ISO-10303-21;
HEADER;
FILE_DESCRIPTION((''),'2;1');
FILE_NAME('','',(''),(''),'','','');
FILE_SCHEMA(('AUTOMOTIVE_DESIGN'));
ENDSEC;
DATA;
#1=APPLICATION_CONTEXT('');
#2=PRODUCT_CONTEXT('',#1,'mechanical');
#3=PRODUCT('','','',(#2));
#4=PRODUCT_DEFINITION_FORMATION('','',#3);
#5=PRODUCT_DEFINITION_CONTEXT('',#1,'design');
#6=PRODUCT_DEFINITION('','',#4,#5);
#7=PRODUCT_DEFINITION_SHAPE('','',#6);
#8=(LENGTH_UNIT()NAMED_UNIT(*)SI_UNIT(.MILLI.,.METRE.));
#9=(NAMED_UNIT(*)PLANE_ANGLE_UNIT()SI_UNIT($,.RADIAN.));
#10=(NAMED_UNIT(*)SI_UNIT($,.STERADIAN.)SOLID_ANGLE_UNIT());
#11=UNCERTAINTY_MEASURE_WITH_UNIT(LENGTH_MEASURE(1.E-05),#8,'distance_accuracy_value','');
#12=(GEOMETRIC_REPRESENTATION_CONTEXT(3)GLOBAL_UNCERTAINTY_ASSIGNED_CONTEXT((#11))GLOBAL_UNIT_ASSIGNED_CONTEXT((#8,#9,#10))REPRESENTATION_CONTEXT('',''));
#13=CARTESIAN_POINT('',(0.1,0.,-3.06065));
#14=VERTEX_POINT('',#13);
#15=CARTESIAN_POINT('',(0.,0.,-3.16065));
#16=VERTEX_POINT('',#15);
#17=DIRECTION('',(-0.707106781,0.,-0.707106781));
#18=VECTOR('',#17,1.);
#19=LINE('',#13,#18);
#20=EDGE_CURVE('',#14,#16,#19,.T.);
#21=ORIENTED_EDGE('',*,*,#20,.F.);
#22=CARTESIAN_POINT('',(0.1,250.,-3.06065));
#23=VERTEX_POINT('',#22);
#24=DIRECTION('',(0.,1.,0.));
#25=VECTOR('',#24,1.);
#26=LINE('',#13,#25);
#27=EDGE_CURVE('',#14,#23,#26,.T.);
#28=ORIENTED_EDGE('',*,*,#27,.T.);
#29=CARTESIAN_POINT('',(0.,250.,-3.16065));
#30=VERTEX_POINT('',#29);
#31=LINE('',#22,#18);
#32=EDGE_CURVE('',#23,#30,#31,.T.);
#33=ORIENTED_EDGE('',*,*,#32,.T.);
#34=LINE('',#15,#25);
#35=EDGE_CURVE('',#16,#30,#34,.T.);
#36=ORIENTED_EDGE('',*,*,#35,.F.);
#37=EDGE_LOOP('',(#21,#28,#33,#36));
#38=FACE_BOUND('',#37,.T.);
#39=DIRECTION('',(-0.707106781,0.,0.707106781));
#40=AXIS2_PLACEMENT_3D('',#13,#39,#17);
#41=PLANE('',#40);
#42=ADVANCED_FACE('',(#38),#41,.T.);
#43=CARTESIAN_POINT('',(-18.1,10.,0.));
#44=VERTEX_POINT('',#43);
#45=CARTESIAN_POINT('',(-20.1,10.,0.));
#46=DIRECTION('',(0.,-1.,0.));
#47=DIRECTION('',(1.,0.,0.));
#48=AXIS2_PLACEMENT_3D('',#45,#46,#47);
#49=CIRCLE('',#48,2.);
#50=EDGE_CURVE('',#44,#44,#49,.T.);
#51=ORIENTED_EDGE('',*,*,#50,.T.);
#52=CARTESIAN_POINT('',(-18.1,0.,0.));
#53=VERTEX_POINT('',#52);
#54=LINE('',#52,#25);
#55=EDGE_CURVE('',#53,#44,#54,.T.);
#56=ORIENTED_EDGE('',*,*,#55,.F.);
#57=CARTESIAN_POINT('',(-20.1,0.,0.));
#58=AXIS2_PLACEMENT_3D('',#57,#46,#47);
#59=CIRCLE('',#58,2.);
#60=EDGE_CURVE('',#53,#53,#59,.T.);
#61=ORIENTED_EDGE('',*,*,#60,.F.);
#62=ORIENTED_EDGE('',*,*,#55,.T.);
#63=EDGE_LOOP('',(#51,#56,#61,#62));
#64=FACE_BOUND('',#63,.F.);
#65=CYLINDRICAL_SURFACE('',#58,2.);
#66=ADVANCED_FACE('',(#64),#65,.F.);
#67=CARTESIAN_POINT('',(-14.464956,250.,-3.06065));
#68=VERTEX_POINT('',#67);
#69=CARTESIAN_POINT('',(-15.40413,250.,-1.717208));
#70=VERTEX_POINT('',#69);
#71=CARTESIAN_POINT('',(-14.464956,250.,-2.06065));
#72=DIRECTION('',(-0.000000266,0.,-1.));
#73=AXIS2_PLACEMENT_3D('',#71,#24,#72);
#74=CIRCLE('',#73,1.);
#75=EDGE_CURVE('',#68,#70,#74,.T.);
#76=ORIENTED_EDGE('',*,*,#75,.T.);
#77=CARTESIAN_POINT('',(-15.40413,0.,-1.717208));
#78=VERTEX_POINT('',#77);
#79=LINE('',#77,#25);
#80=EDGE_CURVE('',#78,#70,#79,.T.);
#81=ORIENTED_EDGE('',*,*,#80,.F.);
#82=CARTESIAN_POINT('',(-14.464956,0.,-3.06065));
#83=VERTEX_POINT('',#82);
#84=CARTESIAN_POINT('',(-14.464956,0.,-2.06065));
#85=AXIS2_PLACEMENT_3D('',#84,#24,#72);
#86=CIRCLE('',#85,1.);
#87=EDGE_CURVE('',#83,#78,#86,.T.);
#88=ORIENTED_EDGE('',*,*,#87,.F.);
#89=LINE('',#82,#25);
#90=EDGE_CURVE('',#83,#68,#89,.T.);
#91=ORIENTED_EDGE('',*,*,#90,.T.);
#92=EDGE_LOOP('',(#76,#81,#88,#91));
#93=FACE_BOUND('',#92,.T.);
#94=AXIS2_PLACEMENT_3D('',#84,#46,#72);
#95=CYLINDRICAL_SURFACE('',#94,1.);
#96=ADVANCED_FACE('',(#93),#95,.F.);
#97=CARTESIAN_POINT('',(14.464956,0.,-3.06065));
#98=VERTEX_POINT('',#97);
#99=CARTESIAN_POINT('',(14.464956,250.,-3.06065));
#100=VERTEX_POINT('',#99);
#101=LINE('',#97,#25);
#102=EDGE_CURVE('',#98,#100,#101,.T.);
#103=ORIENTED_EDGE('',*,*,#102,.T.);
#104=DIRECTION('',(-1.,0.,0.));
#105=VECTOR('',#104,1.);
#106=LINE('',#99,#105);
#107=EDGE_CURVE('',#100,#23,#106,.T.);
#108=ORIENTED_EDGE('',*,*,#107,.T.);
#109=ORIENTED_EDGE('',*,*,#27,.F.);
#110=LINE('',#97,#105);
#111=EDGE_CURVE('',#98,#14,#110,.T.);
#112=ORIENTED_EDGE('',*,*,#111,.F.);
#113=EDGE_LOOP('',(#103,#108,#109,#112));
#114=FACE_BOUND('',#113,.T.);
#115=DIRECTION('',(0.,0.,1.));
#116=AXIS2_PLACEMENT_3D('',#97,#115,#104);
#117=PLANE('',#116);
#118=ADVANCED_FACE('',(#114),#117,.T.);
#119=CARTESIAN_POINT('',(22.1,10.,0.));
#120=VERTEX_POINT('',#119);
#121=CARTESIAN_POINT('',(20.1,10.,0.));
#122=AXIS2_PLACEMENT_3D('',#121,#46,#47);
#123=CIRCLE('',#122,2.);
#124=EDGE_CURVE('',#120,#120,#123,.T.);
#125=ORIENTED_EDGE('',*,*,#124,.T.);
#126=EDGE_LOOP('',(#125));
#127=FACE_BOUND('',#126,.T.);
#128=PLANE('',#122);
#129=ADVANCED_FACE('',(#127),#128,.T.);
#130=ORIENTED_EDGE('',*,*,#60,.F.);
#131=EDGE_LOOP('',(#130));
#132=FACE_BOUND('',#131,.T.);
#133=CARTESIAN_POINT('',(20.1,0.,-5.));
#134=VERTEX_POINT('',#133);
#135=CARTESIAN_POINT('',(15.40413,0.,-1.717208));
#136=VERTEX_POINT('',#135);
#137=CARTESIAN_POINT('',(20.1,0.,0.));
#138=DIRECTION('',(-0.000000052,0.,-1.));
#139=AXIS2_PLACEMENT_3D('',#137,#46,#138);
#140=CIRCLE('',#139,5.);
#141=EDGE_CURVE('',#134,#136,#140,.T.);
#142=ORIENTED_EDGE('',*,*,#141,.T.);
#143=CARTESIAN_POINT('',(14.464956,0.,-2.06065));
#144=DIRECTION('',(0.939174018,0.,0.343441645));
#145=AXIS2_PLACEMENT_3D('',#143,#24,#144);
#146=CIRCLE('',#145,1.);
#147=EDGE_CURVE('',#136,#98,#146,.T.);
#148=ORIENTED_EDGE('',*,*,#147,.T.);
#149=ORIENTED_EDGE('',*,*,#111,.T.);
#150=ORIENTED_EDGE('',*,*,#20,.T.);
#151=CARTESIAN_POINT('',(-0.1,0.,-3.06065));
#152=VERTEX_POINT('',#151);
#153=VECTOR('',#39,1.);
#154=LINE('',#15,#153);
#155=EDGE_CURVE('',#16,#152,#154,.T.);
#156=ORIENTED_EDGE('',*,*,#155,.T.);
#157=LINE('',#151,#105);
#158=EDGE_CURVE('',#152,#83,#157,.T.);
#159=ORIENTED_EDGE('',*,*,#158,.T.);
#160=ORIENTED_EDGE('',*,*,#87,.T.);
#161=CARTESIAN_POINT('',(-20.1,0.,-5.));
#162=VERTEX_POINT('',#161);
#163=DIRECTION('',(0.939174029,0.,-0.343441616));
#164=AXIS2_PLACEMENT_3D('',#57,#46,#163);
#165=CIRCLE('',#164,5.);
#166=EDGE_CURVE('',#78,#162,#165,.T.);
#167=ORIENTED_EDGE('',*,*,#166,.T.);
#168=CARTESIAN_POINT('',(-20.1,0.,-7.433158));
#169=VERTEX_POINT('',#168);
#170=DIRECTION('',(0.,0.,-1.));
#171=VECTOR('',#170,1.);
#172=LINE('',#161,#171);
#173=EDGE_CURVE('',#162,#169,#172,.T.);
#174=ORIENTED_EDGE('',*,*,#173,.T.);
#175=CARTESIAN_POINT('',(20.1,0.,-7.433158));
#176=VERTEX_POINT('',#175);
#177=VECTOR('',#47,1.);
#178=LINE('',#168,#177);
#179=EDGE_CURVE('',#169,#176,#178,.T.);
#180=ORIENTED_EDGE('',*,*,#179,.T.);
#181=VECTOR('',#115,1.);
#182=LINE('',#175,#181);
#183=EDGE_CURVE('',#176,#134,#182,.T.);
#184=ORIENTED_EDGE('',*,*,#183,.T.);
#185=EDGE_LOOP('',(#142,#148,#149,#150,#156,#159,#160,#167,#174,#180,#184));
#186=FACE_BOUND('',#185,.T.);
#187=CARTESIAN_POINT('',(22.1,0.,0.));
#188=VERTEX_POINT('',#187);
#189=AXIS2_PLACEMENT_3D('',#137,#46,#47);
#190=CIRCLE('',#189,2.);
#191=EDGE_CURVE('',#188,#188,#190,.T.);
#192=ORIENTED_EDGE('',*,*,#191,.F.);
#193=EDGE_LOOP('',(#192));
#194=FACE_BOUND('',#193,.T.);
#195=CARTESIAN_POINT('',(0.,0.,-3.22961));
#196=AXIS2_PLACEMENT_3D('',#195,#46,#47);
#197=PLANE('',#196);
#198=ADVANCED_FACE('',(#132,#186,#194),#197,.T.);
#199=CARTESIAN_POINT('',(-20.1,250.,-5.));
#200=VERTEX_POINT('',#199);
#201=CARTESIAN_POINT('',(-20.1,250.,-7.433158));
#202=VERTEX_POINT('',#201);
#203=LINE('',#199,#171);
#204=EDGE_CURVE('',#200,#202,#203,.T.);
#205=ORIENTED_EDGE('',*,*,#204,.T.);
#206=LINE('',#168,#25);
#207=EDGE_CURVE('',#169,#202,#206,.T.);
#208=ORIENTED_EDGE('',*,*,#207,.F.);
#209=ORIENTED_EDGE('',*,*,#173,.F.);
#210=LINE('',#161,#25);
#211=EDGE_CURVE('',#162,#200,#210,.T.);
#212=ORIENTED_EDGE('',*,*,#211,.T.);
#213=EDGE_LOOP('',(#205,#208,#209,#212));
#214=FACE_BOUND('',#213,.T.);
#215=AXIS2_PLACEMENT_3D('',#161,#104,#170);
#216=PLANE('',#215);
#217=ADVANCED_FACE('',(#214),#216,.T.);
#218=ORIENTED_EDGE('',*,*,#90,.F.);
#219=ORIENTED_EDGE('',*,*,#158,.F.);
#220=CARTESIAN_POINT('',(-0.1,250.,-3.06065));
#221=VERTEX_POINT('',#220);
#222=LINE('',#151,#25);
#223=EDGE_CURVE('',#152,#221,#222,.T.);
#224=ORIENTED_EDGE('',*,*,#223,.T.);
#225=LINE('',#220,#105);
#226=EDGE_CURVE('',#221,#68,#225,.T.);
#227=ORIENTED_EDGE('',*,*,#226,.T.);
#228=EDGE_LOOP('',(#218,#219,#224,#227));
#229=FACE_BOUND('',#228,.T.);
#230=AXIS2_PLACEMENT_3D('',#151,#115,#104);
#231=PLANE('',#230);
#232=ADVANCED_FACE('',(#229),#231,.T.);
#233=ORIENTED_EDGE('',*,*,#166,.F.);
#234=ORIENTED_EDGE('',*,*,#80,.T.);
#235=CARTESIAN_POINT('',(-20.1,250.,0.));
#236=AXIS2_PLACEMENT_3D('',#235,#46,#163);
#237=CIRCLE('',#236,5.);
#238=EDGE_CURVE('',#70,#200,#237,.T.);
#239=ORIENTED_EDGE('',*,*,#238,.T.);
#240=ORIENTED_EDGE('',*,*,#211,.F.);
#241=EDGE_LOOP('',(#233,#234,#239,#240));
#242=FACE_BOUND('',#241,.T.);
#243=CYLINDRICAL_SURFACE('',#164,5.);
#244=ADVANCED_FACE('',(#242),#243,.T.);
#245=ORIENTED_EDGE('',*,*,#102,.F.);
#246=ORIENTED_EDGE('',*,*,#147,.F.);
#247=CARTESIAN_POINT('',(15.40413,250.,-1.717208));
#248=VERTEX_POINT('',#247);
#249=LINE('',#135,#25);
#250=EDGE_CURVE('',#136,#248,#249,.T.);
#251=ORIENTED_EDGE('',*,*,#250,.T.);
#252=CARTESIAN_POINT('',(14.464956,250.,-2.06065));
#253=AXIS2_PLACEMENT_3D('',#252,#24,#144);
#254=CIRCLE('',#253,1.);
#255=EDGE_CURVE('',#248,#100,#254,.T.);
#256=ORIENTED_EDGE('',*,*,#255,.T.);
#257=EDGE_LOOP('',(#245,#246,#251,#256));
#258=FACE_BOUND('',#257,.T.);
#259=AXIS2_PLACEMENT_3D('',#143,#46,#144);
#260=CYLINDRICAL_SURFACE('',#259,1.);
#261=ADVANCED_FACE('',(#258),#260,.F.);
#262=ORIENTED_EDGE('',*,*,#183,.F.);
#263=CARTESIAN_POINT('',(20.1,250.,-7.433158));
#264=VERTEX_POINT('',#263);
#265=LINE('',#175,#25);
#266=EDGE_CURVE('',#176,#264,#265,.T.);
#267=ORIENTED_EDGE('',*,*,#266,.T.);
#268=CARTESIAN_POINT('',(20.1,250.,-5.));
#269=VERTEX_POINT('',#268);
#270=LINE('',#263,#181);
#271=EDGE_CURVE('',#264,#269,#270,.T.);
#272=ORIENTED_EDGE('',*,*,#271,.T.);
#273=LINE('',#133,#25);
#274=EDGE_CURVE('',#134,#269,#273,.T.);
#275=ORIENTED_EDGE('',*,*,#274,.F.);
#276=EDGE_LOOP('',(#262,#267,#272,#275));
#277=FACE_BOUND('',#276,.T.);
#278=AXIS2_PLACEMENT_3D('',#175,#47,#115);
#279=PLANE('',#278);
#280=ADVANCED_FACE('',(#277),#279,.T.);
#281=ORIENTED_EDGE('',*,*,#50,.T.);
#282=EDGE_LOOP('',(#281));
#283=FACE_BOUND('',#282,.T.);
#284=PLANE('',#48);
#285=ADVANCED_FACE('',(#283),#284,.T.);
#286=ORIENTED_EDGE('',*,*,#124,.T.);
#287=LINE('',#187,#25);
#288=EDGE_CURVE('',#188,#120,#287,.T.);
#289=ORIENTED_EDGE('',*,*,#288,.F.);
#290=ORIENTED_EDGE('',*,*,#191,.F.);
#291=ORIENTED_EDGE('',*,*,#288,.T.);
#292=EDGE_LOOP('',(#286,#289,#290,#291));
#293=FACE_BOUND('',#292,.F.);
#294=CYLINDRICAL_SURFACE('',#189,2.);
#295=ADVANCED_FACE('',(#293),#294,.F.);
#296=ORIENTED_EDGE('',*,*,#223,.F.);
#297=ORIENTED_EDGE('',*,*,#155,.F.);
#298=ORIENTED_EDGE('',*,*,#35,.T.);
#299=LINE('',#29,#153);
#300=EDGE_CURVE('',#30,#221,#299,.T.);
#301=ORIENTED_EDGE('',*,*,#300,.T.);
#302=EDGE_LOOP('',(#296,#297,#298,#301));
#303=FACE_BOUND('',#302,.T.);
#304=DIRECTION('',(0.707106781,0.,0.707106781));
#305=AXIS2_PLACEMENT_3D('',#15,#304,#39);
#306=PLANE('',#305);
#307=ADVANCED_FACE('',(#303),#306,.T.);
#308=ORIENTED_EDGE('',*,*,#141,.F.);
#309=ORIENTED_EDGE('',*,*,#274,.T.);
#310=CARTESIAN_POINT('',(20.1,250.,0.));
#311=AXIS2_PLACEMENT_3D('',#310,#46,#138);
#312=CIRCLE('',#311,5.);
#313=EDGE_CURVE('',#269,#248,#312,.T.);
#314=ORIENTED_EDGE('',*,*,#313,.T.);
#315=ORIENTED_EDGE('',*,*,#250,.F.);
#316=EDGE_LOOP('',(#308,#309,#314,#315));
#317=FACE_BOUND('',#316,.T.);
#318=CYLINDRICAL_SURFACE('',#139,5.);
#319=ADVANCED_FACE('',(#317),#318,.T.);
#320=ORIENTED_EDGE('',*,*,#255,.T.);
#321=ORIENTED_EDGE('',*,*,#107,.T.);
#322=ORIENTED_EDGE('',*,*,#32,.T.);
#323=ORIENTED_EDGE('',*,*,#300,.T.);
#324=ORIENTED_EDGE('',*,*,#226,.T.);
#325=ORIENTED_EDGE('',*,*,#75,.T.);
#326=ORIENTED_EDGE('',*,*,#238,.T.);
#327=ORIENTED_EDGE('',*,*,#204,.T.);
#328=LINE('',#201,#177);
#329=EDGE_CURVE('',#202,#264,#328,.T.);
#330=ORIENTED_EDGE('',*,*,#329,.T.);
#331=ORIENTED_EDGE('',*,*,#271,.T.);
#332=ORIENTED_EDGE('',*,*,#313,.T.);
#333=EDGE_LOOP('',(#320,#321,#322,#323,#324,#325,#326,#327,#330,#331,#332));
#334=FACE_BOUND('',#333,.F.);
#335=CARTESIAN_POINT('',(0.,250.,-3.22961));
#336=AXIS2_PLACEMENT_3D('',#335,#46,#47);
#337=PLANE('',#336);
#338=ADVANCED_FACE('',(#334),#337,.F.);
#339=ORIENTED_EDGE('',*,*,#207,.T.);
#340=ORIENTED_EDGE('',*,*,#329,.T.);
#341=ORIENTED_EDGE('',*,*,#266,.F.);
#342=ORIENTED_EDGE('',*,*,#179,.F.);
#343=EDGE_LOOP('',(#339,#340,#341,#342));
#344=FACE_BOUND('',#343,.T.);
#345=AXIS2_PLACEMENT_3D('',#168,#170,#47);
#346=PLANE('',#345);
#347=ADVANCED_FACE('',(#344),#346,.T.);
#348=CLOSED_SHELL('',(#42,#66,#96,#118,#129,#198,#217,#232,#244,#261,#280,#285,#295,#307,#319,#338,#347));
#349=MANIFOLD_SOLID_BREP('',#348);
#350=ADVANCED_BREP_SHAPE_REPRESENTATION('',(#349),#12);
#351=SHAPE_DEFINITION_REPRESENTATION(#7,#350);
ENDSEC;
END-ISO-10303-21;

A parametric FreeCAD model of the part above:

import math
import FreeCAD as App
import Part
import Sketcher

V = App.Vector

doc = App.newDocument("Part")
params = doc.addObject("Spreadsheet::Sheet", "Params")
for row, (alias, value) in enumerate([
    ("sketch1_radius", "1 mm"),
    ("sketch1_radius2", "5 mm"),
    ("sketch1_width", "40.2 mm"),
    ("pad1_length", "250 mm"),
    ("sketch2_diameter", "4 mm"),
    ("pocket1_length", "10 mm"),
], start=1):
    params.set(f"A{row}", alias)
    params.set(f"B{row}", "=" + value)
    params.setAlias(f"B{row}", alias)

body = doc.addObject("PartDesign::Body", "Body")

sketch1 = body.newObject("Sketcher::SketchObject", "Sketch")
sketch1.AttachmentSupport = (doc.getObject("XZ_Plane"), [""])
sketch1.MapMode = "FlatFace"
sketch1.addGeometry(Part.ArcOfCircle(Part.Circle(V(-14.464956, -2.06065, 0), V(0, 0, 1), 1), math.radians(159.913303), math.radians(269.999985)), False)
sketch1.addGeometry(Part.ArcOfCircle(Part.Circle(V(-20.1, 0, 0), V(0, 0, 1), 5), math.radians(-20.086695), math.radians(270.000003)), False)
sketch1.addGeometry(Part.LineSegment(V(-20.1, -5, 0), V(-20.1, -7.433158, 0)), False)
sketch1.addGeometry(Part.LineSegment(V(-20.1, -7.433158, 0), V(20.1, -7.433158, 0)), False)
sketch1.addGeometry(Part.LineSegment(V(20.1, -7.433158, 0), V(20.1, -5, 0)), False)
sketch1.addGeometry(Part.ArcOfCircle(Part.Circle(V(20.1, 0, 0), V(0, 0, 1), 5), math.radians(-90.000003), math.radians(200.086695)), False)
sketch1.addGeometry(Part.ArcOfCircle(Part.Circle(V(14.464956, -2.06065, 0), V(0, 0, 1), 1), math.radians(-89.999985), math.radians(20.086697)), False)
sketch1.addGeometry(Part.LineSegment(V(14.464956, -3.06065, 0), V(0.1, -3.06065, 0)), False)
sketch1.addGeometry(Part.LineSegment(V(0.1, -3.06065, 0), V(0, -3.16065, 0)), False)
sketch1.addGeometry(Part.LineSegment(V(0, -3.16065, 0), V(-0.1, -3.06065, 0)), False)
sketch1.addGeometry(Part.LineSegment(V(-0.1, -3.06065, 0), V(-14.464956, -3.06065, 0)), False)
sketch1.addConstraint(Sketcher.Constraint("Tangent", 0, 1, 1, 1))
sketch1.addConstraint(Sketcher.Constraint("Coincident", 1, 2, 2, 1))
sketch1.addConstraint(Sketcher.Constraint("Coincident", 2, 2, 3, 1))
sketch1.addConstraint(Sketcher.Constraint("Coincident", 3, 2, 4, 1))
sketch1.addConstraint(Sketcher.Constraint("Coincident", 4, 2, 5, 1))
sketch1.addConstraint(Sketcher.Constraint("Tangent", 5, 2, 6, 2))
sketch1.addConstraint(Sketcher.Constraint("Tangent", 6, 1, 7, 1))
sketch1.addConstraint(Sketcher.Constraint("Coincident", 7, 2, 8, 1))
sketch1.addConstraint(Sketcher.Constraint("Coincident", 8, 2, 9, 1))
sketch1.addConstraint(Sketcher.Constraint("Coincident", 9, 2, 10, 1))
sketch1.addConstraint(Sketcher.Constraint("Tangent", 10, 2, 0, 2))
sketch1.addConstraint(Sketcher.Constraint("Vertical", 2))
sketch1.addConstraint(Sketcher.Constraint("Horizontal", 3))
sketch1.addConstraint(Sketcher.Constraint("Vertical", 4))
sketch1.addConstraint(Sketcher.Constraint("Horizontal", 7))
sketch1.addConstraint(Sketcher.Constraint("Horizontal", 10))
sketch1.addConstraint(Sketcher.Constraint("Equal", 1, 5))
sketch1.addConstraint(Sketcher.Constraint("Equal", 0, 6))
sketch1.addConstraint(Sketcher.Constraint("Symmetric", 1, 3, 5, 3, -1, 1))
sketch1.addConstraint(Sketcher.Constraint("Symmetric", 0, 3, 6, 3, -2))
sketch1.addConstraint(Sketcher.Constraint("PointOnObject", 8, 2, -2))
sketch1.addConstraint(Sketcher.Constraint("Perpendicular", 8, 9))
sketch1.addConstraint(Sketcher.Constraint("Vertical", 5, 3, 3, 2))
sketch1.addConstraint(Sketcher.Constraint("Equal", 7, 10))
sketch1.addConstraint(Sketcher.Constraint("Radius", 0, 1.0))
sketch1.addConstraint(Sketcher.Constraint("Radius", 1, 5.0))
sketch1.addConstraint(Sketcher.Constraint("DistanceX", 3, 1, 3, 2, 40.2))
sketch1.addConstraint(Sketcher.Constraint("DistanceX", 1, 3, -1, 1, 20.1))
sketch1.addConstraint(Sketcher.Constraint("DistanceX", -1, 1, 7, 2, 0.1))
sketch1.addConstraint(Sketcher.Constraint("DistanceX", 7, 2, 7, 1, 14.364956))
sketch1.addConstraint(Sketcher.Constraint("DistanceY", 2, 2, 2, 1, 2.433158))
sketch1.setExpression("Constraints[24]", "Params.sketch1_radius")
sketch1.setExpression("Constraints[25]", "Params.sketch1_radius2")
sketch1.setExpression("Constraints[26]", "Params.sketch1_width")
pad1 = body.newObject("PartDesign::Pad", "Pad")
pad1.Profile = sketch1
pad1.setExpression("Length", "Params.pad1_length")
pad1.Reversed = True

sketch2 = body.newObject("Sketcher::SketchObject", "Sketch001")
sketch2.AttachmentSupport = (doc.getObject("XZ_Plane"), [""])
sketch2.MapMode = "FlatFace"
sketch2.addGeometry(Part.Circle(V(-20.1, 0, 0), V(0, 0, 1), 2), False)
sketch2.addGeometry(Part.Circle(V(20.1, 0, 0), V(0, 0, 1), 2), False)
sketch2.addConstraint(Sketcher.Constraint("Equal", 0, 1))
sketch2.addConstraint(Sketcher.Constraint("Symmetric", 0, 3, 1, 3, -1, 1))
sketch2.addConstraint(Sketcher.Constraint("PointOnObject", 0, 3, -1))
sketch2.addConstraint(Sketcher.Constraint("Diameter", 0, 4.0))
sketch2.addConstraint(Sketcher.Constraint("DistanceX", 0, 3, -1, 1, 20.1))
sketch2.setExpression("Constraints[3]", "Params.sketch2_diameter")
pocket1 = body.newObject("PartDesign::Pocket", "Pocket")
pocket1.Profile = sketch2
pocket1.setExpression("Length", "Params.pocket1_length")

doc.recompute()
